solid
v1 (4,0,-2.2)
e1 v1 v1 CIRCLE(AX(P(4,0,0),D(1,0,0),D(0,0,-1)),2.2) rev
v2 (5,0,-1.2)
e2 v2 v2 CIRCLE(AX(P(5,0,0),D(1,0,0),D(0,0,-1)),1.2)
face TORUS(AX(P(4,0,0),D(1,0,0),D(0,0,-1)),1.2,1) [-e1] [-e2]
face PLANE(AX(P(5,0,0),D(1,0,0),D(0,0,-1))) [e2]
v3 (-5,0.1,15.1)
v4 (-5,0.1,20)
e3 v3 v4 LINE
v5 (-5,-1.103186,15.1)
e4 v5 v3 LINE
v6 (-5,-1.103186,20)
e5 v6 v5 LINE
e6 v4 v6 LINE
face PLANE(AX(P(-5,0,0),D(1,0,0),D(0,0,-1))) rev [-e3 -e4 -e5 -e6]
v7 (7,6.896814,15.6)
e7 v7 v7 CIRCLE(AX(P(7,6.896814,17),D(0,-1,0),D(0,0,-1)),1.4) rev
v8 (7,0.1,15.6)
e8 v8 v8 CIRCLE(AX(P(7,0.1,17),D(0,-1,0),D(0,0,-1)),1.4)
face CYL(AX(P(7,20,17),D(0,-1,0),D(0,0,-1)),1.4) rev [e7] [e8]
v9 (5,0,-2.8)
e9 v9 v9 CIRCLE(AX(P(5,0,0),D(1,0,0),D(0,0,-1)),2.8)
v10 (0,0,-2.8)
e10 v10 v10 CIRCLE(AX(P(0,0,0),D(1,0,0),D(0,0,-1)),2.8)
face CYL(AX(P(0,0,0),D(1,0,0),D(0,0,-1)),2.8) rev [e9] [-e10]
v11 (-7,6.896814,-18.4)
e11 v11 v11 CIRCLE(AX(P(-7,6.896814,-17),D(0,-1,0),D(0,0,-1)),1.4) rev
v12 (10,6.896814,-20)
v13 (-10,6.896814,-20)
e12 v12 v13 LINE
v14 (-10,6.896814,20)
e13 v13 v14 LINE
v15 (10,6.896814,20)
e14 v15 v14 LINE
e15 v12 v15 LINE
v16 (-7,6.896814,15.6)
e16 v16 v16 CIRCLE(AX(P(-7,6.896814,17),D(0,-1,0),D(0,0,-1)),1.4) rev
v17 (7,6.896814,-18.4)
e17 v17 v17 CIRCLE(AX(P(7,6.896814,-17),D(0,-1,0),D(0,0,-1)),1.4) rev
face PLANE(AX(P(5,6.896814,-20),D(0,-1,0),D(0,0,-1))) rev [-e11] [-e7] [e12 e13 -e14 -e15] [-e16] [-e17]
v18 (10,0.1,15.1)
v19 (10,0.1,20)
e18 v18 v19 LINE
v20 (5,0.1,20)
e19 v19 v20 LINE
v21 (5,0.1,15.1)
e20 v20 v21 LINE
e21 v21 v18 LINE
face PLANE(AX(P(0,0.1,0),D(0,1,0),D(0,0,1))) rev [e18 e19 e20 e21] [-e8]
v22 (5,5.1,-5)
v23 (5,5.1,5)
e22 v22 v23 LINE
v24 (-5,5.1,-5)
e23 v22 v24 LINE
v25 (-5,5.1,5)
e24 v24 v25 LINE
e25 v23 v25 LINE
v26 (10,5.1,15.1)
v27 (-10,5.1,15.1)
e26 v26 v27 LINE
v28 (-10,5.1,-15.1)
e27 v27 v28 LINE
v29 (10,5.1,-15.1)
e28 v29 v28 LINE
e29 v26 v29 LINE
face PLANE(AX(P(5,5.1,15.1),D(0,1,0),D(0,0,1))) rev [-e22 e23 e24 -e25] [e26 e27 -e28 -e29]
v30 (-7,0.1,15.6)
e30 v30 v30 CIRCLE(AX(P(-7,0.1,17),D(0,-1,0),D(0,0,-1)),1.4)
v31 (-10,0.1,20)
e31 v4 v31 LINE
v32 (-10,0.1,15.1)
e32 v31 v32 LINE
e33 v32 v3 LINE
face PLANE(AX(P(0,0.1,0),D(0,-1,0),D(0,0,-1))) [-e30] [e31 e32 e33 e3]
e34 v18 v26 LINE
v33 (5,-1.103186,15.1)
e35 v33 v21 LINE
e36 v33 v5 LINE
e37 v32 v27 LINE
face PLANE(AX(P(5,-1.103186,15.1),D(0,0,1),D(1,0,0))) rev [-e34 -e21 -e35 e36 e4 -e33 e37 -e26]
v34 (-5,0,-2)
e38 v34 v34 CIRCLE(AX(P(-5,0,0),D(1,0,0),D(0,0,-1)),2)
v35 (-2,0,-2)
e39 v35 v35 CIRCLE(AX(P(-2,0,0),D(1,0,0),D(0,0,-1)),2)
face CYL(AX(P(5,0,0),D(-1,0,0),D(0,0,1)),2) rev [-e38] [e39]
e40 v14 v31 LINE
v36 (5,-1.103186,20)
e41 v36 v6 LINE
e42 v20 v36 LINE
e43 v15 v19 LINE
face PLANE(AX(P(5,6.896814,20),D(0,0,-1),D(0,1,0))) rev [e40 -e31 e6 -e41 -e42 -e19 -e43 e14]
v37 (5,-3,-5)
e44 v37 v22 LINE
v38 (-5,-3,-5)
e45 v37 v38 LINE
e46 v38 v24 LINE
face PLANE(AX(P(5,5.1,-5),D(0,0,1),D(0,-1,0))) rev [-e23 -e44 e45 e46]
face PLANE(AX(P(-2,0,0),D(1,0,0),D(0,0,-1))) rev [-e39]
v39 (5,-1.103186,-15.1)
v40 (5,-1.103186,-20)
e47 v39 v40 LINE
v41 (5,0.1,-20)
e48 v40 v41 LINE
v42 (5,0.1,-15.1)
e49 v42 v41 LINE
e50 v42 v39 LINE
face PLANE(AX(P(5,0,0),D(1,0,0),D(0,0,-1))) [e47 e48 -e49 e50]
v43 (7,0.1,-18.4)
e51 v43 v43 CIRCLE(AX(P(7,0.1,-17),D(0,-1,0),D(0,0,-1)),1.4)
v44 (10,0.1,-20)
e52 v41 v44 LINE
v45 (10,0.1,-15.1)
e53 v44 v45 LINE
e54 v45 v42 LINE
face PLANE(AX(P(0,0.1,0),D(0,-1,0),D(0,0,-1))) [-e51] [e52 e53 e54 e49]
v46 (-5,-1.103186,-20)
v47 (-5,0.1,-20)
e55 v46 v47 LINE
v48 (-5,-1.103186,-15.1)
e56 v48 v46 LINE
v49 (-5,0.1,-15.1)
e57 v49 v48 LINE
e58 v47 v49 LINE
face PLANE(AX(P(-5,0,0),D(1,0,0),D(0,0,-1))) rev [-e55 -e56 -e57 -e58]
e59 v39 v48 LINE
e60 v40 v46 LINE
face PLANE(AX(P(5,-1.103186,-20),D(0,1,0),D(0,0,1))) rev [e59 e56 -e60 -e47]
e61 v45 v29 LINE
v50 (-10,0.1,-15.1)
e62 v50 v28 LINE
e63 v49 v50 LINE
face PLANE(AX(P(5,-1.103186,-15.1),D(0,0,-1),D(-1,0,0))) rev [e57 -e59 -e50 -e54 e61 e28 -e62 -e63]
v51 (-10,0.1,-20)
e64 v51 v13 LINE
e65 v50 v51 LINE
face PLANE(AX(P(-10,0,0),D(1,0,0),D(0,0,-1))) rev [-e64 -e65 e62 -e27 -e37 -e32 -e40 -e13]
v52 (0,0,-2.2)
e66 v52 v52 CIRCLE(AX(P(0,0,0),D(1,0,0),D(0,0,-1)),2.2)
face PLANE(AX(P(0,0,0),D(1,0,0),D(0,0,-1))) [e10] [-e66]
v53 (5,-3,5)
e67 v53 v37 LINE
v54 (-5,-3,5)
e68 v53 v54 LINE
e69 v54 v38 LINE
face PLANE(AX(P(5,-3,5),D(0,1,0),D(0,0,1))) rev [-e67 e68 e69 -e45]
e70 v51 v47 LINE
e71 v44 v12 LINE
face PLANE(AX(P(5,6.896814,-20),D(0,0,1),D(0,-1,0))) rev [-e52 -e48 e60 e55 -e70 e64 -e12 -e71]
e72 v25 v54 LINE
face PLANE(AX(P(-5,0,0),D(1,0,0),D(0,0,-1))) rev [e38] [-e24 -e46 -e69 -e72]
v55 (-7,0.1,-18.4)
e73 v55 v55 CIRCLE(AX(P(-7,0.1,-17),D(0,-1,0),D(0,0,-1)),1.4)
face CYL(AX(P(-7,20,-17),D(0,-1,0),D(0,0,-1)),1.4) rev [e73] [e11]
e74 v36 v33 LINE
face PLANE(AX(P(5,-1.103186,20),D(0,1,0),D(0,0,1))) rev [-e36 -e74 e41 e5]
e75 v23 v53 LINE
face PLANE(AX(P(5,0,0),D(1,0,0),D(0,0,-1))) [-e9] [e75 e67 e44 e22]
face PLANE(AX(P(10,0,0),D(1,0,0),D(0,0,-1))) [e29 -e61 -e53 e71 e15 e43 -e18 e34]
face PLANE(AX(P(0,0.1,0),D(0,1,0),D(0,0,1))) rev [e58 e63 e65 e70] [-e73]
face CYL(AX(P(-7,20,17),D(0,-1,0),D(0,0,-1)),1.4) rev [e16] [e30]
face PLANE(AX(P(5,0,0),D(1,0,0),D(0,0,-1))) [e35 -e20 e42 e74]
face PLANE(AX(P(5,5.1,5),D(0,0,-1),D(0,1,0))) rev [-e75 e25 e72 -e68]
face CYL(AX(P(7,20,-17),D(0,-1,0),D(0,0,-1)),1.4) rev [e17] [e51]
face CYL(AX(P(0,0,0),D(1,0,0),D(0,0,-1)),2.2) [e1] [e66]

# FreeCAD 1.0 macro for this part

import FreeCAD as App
import Part
import Sketcher
from FreeCAD import Vector
Q = App.Units.Quantity


def edges_at(feature, points):
    """Names of the edges that pass closest to the given points."""
    edges = feature.Shape.Edges
    near = lambda p: min(range(len(edges)), key=lambda i: edges[i].distToShape(Part.Vertex(*p))[0])
    return sorted({f"Edge{near(p) + 1}" for p in points})

doc = App.newDocument("Part")
body = doc.addObject("PartDesign::Body", "Body")

sketch1 = body.newObject("Sketcher::SketchObject", "Sketch")
sketch1.AttachmentSupport = (doc.getObject("YZ_Plane"), [""])
sketch1.MapMode = "FlatFace"
sketch1.addGeometry([
    Part.LineSegment(Vector(6.9, -20, 0), Vector(6.9, 20, 0)),
    Part.LineSegment(Vector(6.9, 20, 0), Vector(-1.1, 20, 0)),
    Part.LineSegment(Vector(-1.1, 20, 0), Vector(-1.1, 15.1, 0)),
    Part.LineSegment(Vector(-1.1, 15.1, 0), Vector(5.1, 15.1, 0)),
    Part.LineSegment(Vector(5.1, 15.1, 0), Vector(5.1, 5, 0)),
    Part.LineSegment(Vector(5.1, 5, 0), Vector(-3, 5, 0)),
    Part.LineSegment(Vector(-3, 5, 0), Vector(-3, -5, 0)),
    Part.LineSegment(Vector(-3, -5, 0), Vector(5.1, -5, 0)),
    Part.LineSegment(Vector(5.1, -5, 0), Vector(5.1, -15.1, 0)),
    Part.LineSegment(Vector(5.1, -15.1, 0), Vector(-1.1, -15.1, 0)),
    Part.LineSegment(Vector(-1.1, -15.1, 0), Vector(-1.1, -20, 0)),
    Part.LineSegment(Vector(-1.1, -20, 0), Vector(6.9, -20, 0)),
    Part.Circle(Vector(0, 0, 0), Vector(0, 0, 1), 2),
], False)
sketch1.addConstraint([
    Sketcher.Constraint("Coincident", 0, 2, 1, 1),
    Sketcher.Constraint("Coincident", 1, 2, 2, 1),
    Sketcher.Constraint("Coincident", 2, 2, 3, 1),
    Sketcher.Constraint("Coincident", 3, 2, 4, 1),
    Sketcher.Constraint("Coincident", 4, 2, 5, 1),
    Sketcher.Constraint("Coincident", 5, 2, 6, 1),
    Sketcher.Constraint("Coincident", 6, 2, 7, 1),
    Sketcher.Constraint("Coincident", 7, 2, 8, 1),
    Sketcher.Constraint("Coincident", 8, 2, 9, 1),
    Sketcher.Constraint("Coincident", 9, 2, 10, 1),
    Sketcher.Constraint("Coincident", 10, 2, 11, 1),
    Sketcher.Constraint("Coincident", 11, 2, 0, 1),
    Sketcher.Constraint("Vertical", 0),
    Sketcher.Constraint("Horizontal", 1),
    Sketcher.Constraint("Vertical", 2),
    Sketcher.Constraint("Horizontal", 3),
    Sketcher.Constraint("Vertical", 4),
    Sketcher.Constraint("Horizontal", 5),
    Sketcher.Constraint("Vertical", 6),
    Sketcher.Constraint("Horizontal", 7),
    Sketcher.Constraint("Vertical", 8),
    Sketcher.Constraint("Horizontal", 9),
    Sketcher.Constraint("Vertical", 10),
    Sketcher.Constraint("Horizontal", 11),
    Sketcher.Constraint("Coincident", 12, 3, -1, 1),
    Sketcher.Constraint("Symmetric", 4, 2, 7, 2, -1),
    Sketcher.Constraint("Symmetric", 2, 2, 9, 2, -1),
    Sketcher.Constraint("Equal", 2, 10),
    Sketcher.Constraint("Diameter", 12, Q("4 mm")),
    Sketcher.Constraint("DistanceX", 1, 2, 1, 1, Q("8 mm")),
    Sketcher.Constraint("DistanceY", 0, 1, 0, 2, Q("40 mm")),
    Sketcher.Constraint("DistanceY", 6, 2, 6, 1, Q("10 mm")),
    Sketcher.Constraint("DistanceX", 5, 2, 5, 1, Q("8.1 mm")),
    Sketcher.Constraint("DistanceY", 2, 2, 2, 1, Q("4.9 mm")),
    Sketcher.Constraint("DistanceX", 5, 2, -1, 1, Q("3 mm")),
    Sketcher.Constraint("DistanceX", 3, 1, 3, 2, Q("6.203186 mm")),
])
pad1 = body.newObject("PartDesign::Pad", "Pad")
pad1.Profile = sketch1
pad1.Length = 10
pad1.Midplane = True

sketch2 = body.newObject("Sketcher::SketchObject", "Sketch001")
sketch2.AttachmentSupport = (doc.getObject("YZ_Plane"), [""])
sketch2.MapMode = "FlatFace"
sketch2.addGeometry([
    Part.LineSegment(Vector(6.9, 20, 0), Vector(5.1, 20, 0)),
    Part.LineSegment(Vector(5.1, 20, 0), Vector(5.1, -20, 0)),
    Part.LineSegment(Vector(5.1, -20, 0), Vector(6.9, -20, 0)),
    Part.LineSegment(Vector(6.9, -20, 0), Vector(6.9, 20, 0)),
], False)
sketch2.addConstraint([
    Sketcher.Constraint("Coincident", 0, 2, 1, 1),
    Sketcher.Constraint("Coincident", 1, 2, 2, 1),
    Sketcher.Constraint("Coincident", 2, 2, 3, 1),
    Sketcher.Constraint("Coincident", 3, 2, 0, 1),
    Sketcher.Constraint("Horizontal", 0),
    Sketcher.Constraint("Vertical", 1),
    Sketcher.Constraint("Horizontal", 2),
    Sketcher.Constraint("Vertical", 3),
    Sketcher.Constraint("DistanceY", 1, 2, 1, 1, Q("40 mm")),
    Sketcher.Constraint("DistanceY", -1, 1, 0, 2, Q("20 mm")),
    Sketcher.Constraint("DistanceX", -1, 1, 0, 2, Q("5.1 mm")),
    Sketcher.Constraint("DistanceX", 0, 2, 0, 1, Q("1.796814 mm")),
])
pad2 = body.newObject("PartDesign::Pad", "Pad001")
pad2.Profile = sketch2
pad2.Length = 20
pad2.Midplane = True

sketch3 = body.newObject("Sketcher::SketchObject", "Sketch002")
sketch3.AttachmentSupport = (doc.getObject("XZ_Plane"), [""])
sketch3.MapMode = "FlatFace"
sketch3.addGeometry([
    Part.Circle(Vector(-7, 17, 0), Vector(0, 0, 1), 1.4),
    Part.Circle(Vector(7, 17, 0), Vector(0, 0, 1), 1.4),
    Part.Circle(Vector(7, -17, 0), Vector(0, 0, 1), 1.4),
    Part.Circle(Vector(-7, -17, 0), Vector(0, 0, 1), 1.4),
], False)
sketch3.addConstraint([
    Sketcher.Constraint("Equal", 0, 1),
    Sketcher.Constraint("Equal", 1, 2),
    Sketcher.Constraint("Equal", 2, 3),
    Sketcher.Constraint("Symmetric", 0, 3, 2, 3, -1, 1),
    Sketcher.Constraint("Symmetric", 1, 3, 3, 3, -1, 1),
    Sketcher.Constraint("Symmetric", 0, 3, 1, 3, -2),
    Sketcher.Constraint("Diameter", 0, Q("2.8 mm")),
    Sketcher.Constraint("DistanceX", 0, 3, -1, 1, Q("7 mm")),
    Sketcher.Constraint("DistanceY", -1, 1, 0, 3, Q("17 mm")),
])
pocket1 = body.newObject("PartDesign::Pocket", "Pocket")
pocket1.Profile = sketch3
pocket1.Length = 20

sketch4 = body.newObject("Sketcher::SketchObject", "Sketch003")
sketch4.AttachmentSupport = (doc.getObject("YZ_Plane"), [""])
sketch4.MapMode = "FlatFace"
sketch4.AttachmentOffset = App.Placement(Vector(0, 0, 5), App.Rotation())
sketch4.addGeometry(Part.Circle(Vector(0, 0, 0), Vector(0, 0, 1), 2.5), False)
sketch4.addConstraint([
    Sketcher.Constraint("Coincident", 0, 3, -1, 1),
    Sketcher.Constraint("Diameter", 0, Q("5 mm")),
])
pad3 = body.newObject("PartDesign::Pad", "Pad002")
pad3.Profile = sketch4
pad3.Length = 7
pad3.Reversed = True

sketch5 = body.newObject("Sketcher::SketchObject", "Sketch004")
sketch5.AttachmentSupport = (doc.getObject("YZ_Plane"), [""])
sketch5.MapMode = "FlatFace"
sketch5.AttachmentOffset = App.Placement(Vector(0, 0, 5), App.Rotation())
sketch5.addGeometry([
    Part.Circle(Vector(0, 0, 0), Vector(0, 0, 1), 2.8),
    Part.Circle(Vector(0, 0, 0), Vector(0, 0, 1), 2.2),
], False)
sketch5.addConstraint([
    Sketcher.Constraint("Coincident", 0, 3, -1, 1),
    Sketcher.Constraint("Coincident", 1, 3, -1, 1),
    Sketcher.Constraint("Diameter", 0, Q("5.6 mm")),
    Sketcher.Constraint("Diameter", 1, Q("4.4 mm")),
])
pocket2 = body.newObject("PartDesign::Pocket", "Pocket001")
pocket2.Profile = sketch5
pocket2.Length = 5
doc.recompute()

fillet = body.newObject("PartDesign::Fillet", "Fillet")
fillet.Base = (pocket2, edges_at(pocket2, [(5, 0, 2.2)]))
fillet.Radius = 1

sketch6 = body.newObject("Sketcher::SketchObject", "Sketch005")
sketch6.AttachmentSupport = (doc.getObject("XZ_Plane"), [""])
sketch6.MapMode = "FlatFace"
sketch6.AttachmentOffset = App.Placement(Vector(0, 0, -0.1), App.Rotation())
sketch6.addGeometry([
    Part.LineSegment(Vector(-10, 20, 0), Vector(-10, 15.1, 0)),
    Part.LineSegment(Vector(-10, 15.1, 0), Vector(-5, 15.1, 0)),
    Part.LineSegment(Vector(-5, 15.1, 0), Vector(-5, 20, 0)),
    Part.LineSegment(Vector(-5, 20, 0), Vector(-10, 20, 0)),
    Part.Circle(Vector(-7, 17, 0), Vector(0, 0, 1), 1.4),
    Part.LineSegment(Vector(5, 20, 0), Vector(5, 15.1, 0)),
    Part.LineSegment(Vector(5, 15.1, 0), Vector(10, 15.1, 0)),
    Part.LineSegment(Vector(10, 15.1, 0), Vector(10, 20, 0)),
    Part.LineSegment(Vector(10, 20, 0), Vector(5, 20, 0)),
    Part.Circle(Vector(7, 17, 0), Vector(0, 0, 1), 1.4),
    Part.LineSegment(Vector(-10, -15.1, 0), Vector(-10, -20, 0)),
    Part.LineSegment(Vector(-10, -20, 0), Vector(-5, -20, 0)),
    Part.LineSegment(Vector(-5, -20, 0), Vector(-5, -15.1, 0)),
    Part.LineSegment(Vector(-5, -15.1, 0), Vector(-10, -15.1, 0)),
    Part.Circle(Vector(-7, -17, 0), Vector(0, 0, 1), 1.4),
    Part.LineSegment(Vector(5, -15.1, 0), Vector(5, -20, 0)),
    Part.LineSegment(Vector(5, -20, 0), Vector(10, -20, 0)),
    Part.LineSegment(Vector(10, -20, 0), Vector(10, -15.1, 0)),
    Part.LineSegment(Vector(10, -15.1, 0), Vector(5, -15.1, 0)),
    Part.Circle(Vector(7, -17, 0), Vector(0, 0, 1), 1.4),
], False)
sketch6.addConstraint([
    Sketcher.Constraint("Coincident", 0, 2, 1, 1),
    Sketcher.Constraint("Coincident", 1, 2, 2, 1),
    Sketcher.Constraint("Coincident", 2, 2, 3, 1),
    Sketcher.Constraint("Coincident", 3, 2, 0, 1),
    Sketcher.Constraint("Coincident", 5, 2, 6, 1),
    Sketcher.Constraint("Coincident", 6, 2, 7, 1),
    Sketcher.Constraint("Coincident", 7, 2, 8, 1),
    Sketcher.Constraint("Coincident", 8, 2, 5, 1),
    Sketcher.Constraint("Coincident", 10, 2, 11, 1),
    Sketcher.Constraint("Coincident", 11, 2, 12, 1),
    Sketcher.Constraint("Coincident", 12, 2, 13, 1),
    Sketcher.Constraint("Coincident", 13, 2, 10, 1),
    Sketcher.Constraint("Coincident", 15, 2, 16, 1),
    Sketcher.Constraint("Coincident", 16, 2, 17, 1),
    Sketcher.Constraint("Coincident", 17, 2, 18, 1),
    Sketcher.Constraint("Coincident", 18, 2, 15, 1),
    Sketcher.Constraint("Vertical", 0),
    Sketcher.Constraint("Horizontal", 1),
    Sketcher.Constraint("Vertical", 2),
    Sketcher.Constraint("Horizontal", 3),
    Sketcher.Constraint("Vertical", 5),
    Sketcher.Constraint("Horizontal", 6),
    Sketcher.Constraint("Vertical", 7),
    Sketcher.Constraint("Horizontal", 8),
    Sketcher.Constraint("Vertical", 10),
    Sketcher.Constraint("Horizontal", 11),
    Sketcher.Constraint("Vertical", 12),
    Sketcher.Constraint("Horizontal", 13),
    Sketcher.Constraint("Vertical", 15),
    Sketcher.Constraint("Horizontal", 16),
    Sketcher.Constraint("Vertical", 17),
    Sketcher.Constraint("Horizontal", 18),
    Sketcher.Constraint("Equal", 4, 9),
    Sketcher.Constraint("Equal", 9, 14),
    Sketcher.Constraint("Equal", 14, 19),
    Sketcher.Constraint("Symmetric", 9, 3, 14, 3, -1, 1),
    Sketcher.Constraint("Symmetric", 4, 3, 19, 3, -1, 1),
    Sketcher.Constraint("Symmetric", 7, 2, 10, 2, -1, 1),
    Sketcher.Constraint("Symmetric", 5, 2, 12, 2, -1, 1),
    Sketcher.Constraint("Symmetric", 2, 2, 15, 2, -1, 1),
    Sketcher.Constraint("Symmetric", 0, 2, 17, 2, -1, 1),
    Sketcher.Constraint("Symmetric", 4, 3, 9, 3, -2),
    Sketcher.Constraint("Symmetric", 1, 2, 5, 2, -2),
    Sketcher.Constraint("Symmetric", 3, 2, 7, 2, -2),
    Sketcher.Constraint("Diameter", 4, Q("2.8 mm")),
    Sketcher.Constraint("DistanceX", 1, 1, 1, 2, Q("5 mm")),
    Sketcher.Constraint("DistanceY", 0, 2, 0, 1, Q("4.9 mm")),
    Sketcher.Constraint("DistanceX", 4, 3, -1, 1, Q("7 mm")),
    Sketcher.Constraint("DistanceY", -1, 1, 4, 3, Q("17 mm")),
    Sketcher.Constraint("DistanceX", 0, 2, -1, 1, Q("10 mm")),
    Sketcher.Constraint("DistanceY", -1, 1, 2, 2, Q("20 mm")),
])
pad4 = body.newObject("PartDesign::Pad", "Pad003")
pad4.Profile = sketch6
pad4.Length = 5
pad4.Reversed = True

doc.recompute()
